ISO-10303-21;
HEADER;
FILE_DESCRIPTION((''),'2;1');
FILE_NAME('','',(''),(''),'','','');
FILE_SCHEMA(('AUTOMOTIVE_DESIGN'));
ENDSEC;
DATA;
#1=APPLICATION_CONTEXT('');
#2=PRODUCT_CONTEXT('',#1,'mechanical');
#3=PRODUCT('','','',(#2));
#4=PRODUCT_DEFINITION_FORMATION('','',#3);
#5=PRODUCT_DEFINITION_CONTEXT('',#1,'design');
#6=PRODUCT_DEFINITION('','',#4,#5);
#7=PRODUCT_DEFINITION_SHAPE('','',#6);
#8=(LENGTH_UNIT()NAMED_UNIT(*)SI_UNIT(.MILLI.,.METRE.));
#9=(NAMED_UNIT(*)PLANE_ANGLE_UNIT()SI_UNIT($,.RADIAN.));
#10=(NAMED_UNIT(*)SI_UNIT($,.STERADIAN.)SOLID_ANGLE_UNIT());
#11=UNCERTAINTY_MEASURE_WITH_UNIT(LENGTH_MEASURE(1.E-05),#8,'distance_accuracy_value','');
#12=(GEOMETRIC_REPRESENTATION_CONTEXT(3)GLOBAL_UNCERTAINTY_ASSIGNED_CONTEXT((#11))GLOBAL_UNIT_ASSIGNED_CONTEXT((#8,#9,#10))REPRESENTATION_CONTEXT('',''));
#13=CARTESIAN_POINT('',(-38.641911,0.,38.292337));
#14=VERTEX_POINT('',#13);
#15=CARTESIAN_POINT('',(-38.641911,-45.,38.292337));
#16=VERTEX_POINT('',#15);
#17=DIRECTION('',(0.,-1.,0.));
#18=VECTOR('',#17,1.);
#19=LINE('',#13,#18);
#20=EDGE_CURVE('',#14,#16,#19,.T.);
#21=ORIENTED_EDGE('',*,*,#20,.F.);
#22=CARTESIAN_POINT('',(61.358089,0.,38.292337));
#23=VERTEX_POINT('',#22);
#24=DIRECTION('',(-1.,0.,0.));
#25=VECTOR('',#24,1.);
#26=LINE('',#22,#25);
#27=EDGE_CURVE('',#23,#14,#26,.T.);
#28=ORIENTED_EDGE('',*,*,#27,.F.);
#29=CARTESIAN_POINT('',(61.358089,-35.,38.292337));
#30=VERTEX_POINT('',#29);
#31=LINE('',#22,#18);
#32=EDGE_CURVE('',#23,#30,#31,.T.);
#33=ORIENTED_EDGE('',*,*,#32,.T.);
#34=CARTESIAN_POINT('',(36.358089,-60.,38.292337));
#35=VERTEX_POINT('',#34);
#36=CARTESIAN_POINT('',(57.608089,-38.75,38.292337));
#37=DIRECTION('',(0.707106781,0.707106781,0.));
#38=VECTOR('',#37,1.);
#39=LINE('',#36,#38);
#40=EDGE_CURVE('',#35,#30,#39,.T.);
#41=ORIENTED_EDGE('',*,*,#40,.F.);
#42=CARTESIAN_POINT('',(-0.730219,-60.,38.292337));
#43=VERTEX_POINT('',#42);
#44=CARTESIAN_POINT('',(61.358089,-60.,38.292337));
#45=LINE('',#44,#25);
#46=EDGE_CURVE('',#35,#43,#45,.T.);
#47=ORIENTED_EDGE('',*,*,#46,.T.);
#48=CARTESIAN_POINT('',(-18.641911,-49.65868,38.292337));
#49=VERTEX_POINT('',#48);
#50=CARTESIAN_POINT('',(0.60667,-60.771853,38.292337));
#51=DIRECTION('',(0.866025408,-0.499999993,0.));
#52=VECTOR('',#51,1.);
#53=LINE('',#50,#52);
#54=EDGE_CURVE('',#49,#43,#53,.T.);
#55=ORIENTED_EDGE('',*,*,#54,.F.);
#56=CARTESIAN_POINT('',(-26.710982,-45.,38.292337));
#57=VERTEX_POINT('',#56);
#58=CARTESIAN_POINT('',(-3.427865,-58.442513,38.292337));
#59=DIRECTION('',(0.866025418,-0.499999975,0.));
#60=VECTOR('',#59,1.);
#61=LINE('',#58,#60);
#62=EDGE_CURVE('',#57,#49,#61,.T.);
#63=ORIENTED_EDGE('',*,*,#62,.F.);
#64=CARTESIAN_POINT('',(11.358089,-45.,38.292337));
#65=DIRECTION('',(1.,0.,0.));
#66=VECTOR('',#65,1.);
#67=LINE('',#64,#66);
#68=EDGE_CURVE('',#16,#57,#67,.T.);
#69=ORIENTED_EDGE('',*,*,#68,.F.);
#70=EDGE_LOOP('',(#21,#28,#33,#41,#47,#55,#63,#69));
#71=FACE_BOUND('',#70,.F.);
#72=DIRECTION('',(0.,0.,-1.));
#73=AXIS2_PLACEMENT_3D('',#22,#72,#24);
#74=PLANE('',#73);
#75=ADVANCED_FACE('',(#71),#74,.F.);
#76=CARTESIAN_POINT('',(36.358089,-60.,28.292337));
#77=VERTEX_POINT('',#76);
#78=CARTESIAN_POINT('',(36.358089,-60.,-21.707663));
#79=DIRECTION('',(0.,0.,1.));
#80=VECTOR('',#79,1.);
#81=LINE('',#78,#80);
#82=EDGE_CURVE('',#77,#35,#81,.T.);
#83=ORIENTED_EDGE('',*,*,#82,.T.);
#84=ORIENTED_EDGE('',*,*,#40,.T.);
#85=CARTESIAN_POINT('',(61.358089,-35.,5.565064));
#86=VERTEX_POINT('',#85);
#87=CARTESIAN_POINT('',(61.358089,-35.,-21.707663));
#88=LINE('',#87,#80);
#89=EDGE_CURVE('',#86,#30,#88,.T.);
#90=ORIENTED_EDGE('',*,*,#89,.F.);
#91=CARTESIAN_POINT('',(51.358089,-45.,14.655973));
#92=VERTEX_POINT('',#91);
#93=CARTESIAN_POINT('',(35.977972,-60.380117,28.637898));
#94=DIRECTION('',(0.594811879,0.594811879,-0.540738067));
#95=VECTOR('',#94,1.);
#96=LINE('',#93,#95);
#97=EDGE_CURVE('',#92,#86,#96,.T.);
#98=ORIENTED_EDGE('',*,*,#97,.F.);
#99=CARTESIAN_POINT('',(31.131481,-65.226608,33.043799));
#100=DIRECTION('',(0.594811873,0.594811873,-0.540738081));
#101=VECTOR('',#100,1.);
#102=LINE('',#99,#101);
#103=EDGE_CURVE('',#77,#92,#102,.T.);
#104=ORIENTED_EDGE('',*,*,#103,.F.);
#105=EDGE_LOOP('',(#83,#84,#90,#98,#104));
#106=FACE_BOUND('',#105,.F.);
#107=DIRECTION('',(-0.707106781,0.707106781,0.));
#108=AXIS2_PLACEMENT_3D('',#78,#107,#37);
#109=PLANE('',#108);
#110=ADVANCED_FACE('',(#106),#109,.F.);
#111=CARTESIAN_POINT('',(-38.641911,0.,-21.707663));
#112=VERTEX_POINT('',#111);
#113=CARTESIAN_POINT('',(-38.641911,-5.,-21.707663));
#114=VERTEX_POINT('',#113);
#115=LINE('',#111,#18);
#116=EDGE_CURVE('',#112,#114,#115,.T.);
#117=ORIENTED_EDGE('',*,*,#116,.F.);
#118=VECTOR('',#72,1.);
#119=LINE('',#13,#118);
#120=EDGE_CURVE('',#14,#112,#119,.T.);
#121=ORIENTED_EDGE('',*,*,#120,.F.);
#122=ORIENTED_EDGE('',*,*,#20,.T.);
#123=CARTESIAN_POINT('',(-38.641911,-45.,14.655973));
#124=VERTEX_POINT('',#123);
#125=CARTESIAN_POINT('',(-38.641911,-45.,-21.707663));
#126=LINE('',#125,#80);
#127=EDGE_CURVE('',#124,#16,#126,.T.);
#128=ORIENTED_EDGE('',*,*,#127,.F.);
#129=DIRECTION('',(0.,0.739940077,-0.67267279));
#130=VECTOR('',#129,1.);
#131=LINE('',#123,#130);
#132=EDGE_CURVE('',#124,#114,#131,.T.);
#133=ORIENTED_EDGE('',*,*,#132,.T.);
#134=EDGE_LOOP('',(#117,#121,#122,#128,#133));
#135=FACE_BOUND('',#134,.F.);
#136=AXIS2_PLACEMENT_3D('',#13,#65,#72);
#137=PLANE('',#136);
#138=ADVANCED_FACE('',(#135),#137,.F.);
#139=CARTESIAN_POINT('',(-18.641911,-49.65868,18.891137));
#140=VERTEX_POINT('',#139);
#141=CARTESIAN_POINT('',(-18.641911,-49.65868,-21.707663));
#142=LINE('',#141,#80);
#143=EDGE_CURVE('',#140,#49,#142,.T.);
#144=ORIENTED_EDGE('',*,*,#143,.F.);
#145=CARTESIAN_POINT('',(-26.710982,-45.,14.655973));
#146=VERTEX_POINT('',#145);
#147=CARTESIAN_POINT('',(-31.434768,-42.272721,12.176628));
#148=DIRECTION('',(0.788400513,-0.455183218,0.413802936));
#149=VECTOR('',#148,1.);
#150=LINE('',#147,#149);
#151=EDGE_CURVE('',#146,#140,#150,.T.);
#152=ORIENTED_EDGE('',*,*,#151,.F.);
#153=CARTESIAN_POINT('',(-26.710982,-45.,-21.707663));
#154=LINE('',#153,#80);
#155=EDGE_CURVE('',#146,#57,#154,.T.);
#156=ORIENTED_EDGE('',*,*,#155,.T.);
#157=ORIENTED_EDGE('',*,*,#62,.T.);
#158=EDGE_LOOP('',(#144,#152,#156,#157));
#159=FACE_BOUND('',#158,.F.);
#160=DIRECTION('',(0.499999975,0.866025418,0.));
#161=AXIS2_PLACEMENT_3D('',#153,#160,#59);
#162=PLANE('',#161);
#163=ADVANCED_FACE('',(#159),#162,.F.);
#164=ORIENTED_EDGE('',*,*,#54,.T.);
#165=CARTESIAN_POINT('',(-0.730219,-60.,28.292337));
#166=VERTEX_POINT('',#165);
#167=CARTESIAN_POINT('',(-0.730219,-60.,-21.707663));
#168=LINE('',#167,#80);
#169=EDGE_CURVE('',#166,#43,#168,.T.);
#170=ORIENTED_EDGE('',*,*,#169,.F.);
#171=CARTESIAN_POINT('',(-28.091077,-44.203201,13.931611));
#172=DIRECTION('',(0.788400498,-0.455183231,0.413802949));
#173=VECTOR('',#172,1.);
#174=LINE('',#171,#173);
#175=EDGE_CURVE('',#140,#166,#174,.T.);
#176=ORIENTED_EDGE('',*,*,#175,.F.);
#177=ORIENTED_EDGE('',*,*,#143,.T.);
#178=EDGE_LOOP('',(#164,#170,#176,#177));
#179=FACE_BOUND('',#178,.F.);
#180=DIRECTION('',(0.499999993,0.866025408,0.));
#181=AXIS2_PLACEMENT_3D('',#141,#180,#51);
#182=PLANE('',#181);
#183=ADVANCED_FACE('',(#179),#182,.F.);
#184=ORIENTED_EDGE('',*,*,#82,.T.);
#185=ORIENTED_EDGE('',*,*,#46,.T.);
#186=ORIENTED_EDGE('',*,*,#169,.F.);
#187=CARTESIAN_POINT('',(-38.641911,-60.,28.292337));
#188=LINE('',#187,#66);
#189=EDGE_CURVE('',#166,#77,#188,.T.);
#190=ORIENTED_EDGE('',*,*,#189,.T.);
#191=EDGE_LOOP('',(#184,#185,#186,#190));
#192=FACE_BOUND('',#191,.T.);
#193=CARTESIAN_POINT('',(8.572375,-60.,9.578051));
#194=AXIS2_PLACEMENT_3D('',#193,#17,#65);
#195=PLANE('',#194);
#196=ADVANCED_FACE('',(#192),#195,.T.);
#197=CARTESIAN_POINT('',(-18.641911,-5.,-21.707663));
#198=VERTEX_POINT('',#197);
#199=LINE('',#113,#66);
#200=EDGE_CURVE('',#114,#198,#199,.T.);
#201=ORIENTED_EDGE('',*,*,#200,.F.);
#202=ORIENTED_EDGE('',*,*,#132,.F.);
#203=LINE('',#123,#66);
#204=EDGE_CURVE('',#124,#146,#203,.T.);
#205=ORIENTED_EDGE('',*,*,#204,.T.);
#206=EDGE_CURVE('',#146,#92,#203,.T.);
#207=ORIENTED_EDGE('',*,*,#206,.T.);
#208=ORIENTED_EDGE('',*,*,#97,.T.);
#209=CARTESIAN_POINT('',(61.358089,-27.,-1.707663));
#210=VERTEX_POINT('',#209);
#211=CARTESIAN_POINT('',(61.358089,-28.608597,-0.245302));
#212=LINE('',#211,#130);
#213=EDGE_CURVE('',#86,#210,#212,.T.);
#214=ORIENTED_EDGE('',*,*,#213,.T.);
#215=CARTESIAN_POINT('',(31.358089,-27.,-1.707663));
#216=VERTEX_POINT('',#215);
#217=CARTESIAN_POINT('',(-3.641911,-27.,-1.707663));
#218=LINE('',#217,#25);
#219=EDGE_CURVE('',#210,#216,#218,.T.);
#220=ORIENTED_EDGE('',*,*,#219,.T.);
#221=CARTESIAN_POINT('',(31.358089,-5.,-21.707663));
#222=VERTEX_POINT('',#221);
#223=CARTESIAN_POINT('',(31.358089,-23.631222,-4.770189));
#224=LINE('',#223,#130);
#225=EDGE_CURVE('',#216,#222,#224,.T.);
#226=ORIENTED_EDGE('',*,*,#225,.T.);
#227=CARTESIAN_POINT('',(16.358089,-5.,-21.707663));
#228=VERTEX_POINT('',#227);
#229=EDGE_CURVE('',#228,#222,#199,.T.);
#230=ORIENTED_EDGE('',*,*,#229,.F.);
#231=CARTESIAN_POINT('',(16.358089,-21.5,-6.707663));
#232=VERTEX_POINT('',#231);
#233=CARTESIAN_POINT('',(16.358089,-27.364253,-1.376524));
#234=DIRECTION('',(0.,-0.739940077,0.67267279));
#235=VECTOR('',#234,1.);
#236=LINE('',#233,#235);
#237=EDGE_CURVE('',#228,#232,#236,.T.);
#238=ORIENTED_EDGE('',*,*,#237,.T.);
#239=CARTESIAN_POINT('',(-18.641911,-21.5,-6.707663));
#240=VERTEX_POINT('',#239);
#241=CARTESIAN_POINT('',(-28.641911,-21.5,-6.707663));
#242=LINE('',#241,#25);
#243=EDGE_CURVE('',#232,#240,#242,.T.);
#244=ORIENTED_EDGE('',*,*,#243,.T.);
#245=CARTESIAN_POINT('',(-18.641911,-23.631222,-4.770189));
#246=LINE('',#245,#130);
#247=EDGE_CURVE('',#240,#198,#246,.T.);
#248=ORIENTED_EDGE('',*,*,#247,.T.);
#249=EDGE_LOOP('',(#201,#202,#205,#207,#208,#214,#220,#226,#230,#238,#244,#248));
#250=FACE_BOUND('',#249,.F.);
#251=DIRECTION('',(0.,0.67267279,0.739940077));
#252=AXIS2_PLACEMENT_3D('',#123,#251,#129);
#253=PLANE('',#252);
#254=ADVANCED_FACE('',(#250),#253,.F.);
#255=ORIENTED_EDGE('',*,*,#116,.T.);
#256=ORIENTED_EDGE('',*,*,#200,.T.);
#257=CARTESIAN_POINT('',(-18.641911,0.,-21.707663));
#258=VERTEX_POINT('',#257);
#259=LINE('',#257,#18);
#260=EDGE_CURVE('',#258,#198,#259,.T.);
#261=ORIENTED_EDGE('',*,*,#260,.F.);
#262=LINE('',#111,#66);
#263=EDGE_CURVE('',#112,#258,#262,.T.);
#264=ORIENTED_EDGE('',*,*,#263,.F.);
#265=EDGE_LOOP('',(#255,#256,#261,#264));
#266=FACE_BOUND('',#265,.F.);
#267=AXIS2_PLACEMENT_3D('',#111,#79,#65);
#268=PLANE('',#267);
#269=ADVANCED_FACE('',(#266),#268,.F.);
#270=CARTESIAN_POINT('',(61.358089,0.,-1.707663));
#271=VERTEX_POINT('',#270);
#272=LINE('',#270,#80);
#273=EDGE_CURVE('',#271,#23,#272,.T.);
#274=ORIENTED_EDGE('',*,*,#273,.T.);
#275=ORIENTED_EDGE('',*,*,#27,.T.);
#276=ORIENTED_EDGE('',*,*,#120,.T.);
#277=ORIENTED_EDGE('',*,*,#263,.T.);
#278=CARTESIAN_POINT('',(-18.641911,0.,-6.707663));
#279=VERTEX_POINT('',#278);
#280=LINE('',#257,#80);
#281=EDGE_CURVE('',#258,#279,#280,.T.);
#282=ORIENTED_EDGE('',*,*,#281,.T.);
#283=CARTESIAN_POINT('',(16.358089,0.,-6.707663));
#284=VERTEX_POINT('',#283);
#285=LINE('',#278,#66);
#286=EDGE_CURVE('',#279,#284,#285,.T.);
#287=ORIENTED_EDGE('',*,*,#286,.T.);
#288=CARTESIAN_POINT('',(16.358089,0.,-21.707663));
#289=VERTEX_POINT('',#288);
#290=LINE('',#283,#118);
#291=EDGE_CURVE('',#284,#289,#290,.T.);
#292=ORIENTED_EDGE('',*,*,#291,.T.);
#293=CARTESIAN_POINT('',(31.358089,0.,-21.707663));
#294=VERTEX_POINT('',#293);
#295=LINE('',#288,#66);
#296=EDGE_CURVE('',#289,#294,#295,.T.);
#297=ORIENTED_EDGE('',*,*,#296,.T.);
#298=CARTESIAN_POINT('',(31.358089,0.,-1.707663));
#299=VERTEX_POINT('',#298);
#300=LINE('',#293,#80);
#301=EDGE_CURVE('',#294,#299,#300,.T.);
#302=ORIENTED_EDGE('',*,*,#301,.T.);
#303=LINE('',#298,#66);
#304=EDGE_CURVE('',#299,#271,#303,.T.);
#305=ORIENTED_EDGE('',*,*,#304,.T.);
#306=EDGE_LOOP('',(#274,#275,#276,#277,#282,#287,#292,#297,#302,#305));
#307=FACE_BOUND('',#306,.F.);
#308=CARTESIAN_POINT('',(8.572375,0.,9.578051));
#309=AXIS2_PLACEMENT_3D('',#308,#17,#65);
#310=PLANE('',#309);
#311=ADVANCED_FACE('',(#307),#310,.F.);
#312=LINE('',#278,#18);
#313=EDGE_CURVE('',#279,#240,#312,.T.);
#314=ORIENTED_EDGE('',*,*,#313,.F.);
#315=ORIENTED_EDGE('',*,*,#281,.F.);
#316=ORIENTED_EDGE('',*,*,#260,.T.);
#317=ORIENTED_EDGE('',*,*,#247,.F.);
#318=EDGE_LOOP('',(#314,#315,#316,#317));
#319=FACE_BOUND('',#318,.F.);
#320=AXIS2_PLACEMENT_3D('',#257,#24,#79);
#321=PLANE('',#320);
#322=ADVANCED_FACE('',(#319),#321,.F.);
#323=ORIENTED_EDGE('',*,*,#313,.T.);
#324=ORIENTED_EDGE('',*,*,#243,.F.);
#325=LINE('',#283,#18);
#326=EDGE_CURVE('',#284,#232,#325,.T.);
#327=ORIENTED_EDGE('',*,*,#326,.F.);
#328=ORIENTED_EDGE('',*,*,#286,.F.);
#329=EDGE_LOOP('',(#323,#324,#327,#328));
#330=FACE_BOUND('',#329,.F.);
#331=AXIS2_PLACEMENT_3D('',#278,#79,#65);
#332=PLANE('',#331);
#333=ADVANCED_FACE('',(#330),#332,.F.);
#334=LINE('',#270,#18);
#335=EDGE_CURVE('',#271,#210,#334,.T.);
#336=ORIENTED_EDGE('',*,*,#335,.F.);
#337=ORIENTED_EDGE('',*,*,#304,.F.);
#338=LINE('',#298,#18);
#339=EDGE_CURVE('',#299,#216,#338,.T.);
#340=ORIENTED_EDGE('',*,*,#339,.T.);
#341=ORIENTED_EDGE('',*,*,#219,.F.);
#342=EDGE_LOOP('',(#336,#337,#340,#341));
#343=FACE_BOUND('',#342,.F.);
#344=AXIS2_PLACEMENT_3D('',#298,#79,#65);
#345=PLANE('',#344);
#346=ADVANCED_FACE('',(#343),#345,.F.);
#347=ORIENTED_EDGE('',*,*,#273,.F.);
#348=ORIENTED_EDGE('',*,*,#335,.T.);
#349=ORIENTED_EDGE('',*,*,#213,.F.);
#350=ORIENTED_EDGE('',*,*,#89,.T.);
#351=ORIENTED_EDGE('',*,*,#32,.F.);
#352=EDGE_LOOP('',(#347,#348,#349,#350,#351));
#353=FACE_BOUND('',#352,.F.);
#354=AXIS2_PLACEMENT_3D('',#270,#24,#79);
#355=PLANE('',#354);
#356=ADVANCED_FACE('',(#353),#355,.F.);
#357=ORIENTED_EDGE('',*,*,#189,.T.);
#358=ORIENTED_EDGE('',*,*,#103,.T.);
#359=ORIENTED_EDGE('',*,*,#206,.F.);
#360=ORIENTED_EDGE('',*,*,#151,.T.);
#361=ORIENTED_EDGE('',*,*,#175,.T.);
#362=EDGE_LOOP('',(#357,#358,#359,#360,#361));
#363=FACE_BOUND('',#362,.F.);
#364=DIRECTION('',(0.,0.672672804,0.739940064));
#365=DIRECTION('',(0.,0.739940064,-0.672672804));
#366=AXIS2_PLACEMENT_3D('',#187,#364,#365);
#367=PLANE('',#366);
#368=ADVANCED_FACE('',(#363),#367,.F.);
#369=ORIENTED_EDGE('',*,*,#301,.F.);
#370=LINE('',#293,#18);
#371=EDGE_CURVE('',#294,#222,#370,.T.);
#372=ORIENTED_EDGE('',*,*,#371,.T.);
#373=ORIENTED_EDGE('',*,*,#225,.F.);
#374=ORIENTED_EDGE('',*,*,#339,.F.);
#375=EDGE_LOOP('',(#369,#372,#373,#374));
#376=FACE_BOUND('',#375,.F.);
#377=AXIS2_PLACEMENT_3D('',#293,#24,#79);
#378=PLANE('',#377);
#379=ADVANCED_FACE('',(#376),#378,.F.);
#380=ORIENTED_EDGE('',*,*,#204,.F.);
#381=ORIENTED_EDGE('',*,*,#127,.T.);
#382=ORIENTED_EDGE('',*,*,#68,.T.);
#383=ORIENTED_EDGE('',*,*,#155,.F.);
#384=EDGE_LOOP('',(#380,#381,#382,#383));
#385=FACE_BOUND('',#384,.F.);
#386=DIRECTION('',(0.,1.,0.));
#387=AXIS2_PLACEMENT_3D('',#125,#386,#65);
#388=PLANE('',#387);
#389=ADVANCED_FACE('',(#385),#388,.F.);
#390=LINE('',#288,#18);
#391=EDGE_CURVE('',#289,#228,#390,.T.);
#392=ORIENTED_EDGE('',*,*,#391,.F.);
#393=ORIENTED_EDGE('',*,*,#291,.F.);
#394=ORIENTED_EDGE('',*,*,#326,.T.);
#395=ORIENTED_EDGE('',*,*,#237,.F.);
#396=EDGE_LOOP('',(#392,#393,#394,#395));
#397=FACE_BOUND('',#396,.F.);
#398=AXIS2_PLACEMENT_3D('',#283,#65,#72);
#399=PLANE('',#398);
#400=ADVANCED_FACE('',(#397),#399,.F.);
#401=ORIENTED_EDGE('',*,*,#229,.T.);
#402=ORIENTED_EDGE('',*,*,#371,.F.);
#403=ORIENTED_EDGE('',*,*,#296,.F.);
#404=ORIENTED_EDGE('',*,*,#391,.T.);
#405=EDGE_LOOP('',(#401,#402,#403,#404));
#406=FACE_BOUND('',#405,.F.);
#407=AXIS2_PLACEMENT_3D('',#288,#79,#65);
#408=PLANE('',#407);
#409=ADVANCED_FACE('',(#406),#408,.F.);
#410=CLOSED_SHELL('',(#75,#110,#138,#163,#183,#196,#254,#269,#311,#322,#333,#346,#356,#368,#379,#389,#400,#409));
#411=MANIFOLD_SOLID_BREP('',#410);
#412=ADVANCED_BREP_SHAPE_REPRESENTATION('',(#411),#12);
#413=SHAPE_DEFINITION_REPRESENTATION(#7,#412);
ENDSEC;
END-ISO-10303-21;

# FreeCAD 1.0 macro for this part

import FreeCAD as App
import Part
import Sketcher
Q = App.Units.Quantity


def add_polygon(sketch, points):
    """Adds a closed chain of lines whose ends are joined by coincident constraints."""
    first, n = sketch.GeometryCount, len(points)
    for a, b in zip(points, points[1:] + points[:1]):
        sketch.addGeometry(Part.LineSegment(App.Vector(*a, 0), App.Vector(*b, 0)), False)
    for i in range(n):
        sketch.addConstraint(Sketcher.Constraint("Coincident", first + i, 2, first + (i + 1) % n, 1))

doc = App.newDocument("Part")
body = doc.addObject("PartDesign::Body", "Body")

# Sketch on XZ plane
sketch1 = body.newObject("Sketcher::SketchObject", "Sketch")
sketch1.AttachmentSupport = (doc.getObject("XZ_Plane"), [""])
sketch1.MapMode = "FlatFace"
add_polygon(sketch1, [(61, 38), (-39, 38), (-39, -22), (-19, -22), (-19, -7), (16, -7), (16, -22), (31, -22), (31, -2), (61, -2)])  # lines 0-9
sketch1.addConstraint([
    Sketcher.Constraint("Horizontal", 0),
    Sketcher.Constraint("Vertical", 1),
    Sketcher.Constraint("Horizontal", 2),
    Sketcher.Constraint("Vertical", 3),
    Sketcher.Constraint("Horizontal", 4),
    Sketcher.Constraint("Vertical", 5),
    Sketcher.Constraint("Horizontal", 6),
    Sketcher.Constraint("Vertical", 7),
    Sketcher.Constraint("Horizontal", 8),
    Sketcher.Constraint("Vertical", 9),
    Sketcher.Constraint("Horizontal", 2, 2, 5, 2),
    Sketcher.Constraint("Equal", 6, 3),
    Sketcher.Constraint("Equal", 2, 7),
    Sketcher.Constraint("DistanceX", 0, 2, 0, 1, 100.0),
    Sketcher.Constraint("DistanceX", 2, 1, 2, 2, 20.0),
    Sketcher.Constraint("DistanceX", 4, 1, 4, 2, 35.0),
    Sketcher.Constraint("DistanceX", 6, 1, 6, 2, 15.0),
    Sketcher.Constraint("DistanceY", 1, 2, 1, 1, 60.0),
    Sketcher.Constraint("DistanceX", 0, 2, -1, 1, 38.641911),
    Sketcher.Constraint("DistanceY", -1, 1, 0, 2, 38.292337),
])
pad1 = body.newObject("PartDesign::Pad", "Pad")
pad1.Profile = sketch1
pad1.Length = 60

# Sketch on XY plane
sketch2 = body.newObject("Sketcher::SketchObject", "Sketch001")
sketch2.AttachmentSupport = (doc.getObject("XY_Plane"), [""])
sketch2.MapMode = "FlatFace"
sketch2.AttachmentOffset = App.Placement(App.Vector(0, 0, -21.707663), App.Rotation())
add_polygon(sketch2, [(-39, -60), (-39, -45), (-27, -45), (-19, -50), (-1, -60)])  # lines 0-4
add_polygon(sketch2, [(61, -60), (36, -60), (61, -35)])  # lines 5-7
sketch2.addConstraint([
    Sketcher.Constraint("Vertical", 0),
    Sketcher.Constraint("Horizontal", 1),
    Sketcher.Constraint("Horizontal", 4),
    Sketcher.Constraint("Horizontal", 5),
    Sketcher.Constraint("Vertical", 7),
    Sketcher.Constraint("Parallel", 2, 3),
    Sketcher.Constraint("Horizontal", 4, 2, 5, 2),
    Sketcher.Constraint("Equal", 5, 7),
    Sketcher.Constraint("DistanceX", 5, 2, 5, 1, 25.0),
    Sketcher.Constraint("DistanceY", 0, 1, 0, 2, 15.0),
    Sketcher.Constraint("Angle", 2, Q("-29.999998 deg")),
    Sketcher.Constraint("DistanceY", 0, 2, -1, 1, 45.0),
    Sketcher.Constraint("DistanceX", 0, 2, 2, 2, 20.0),
    Sketcher.Constraint("DistanceX", 2, 2, 5, 2, 55.0),
    Sketcher.Constraint("DistanceX", 1, 1, 1, 2, 11.930929),
    Sketcher.Constraint("DistanceX", 0, 2, -1, 1, 38.641911),
])
pocket1 = body.newObject("PartDesign::Pocket", "Pocket")
pocket1.Profile = sketch2
pocket1.Type = "ThroughAll"
pocket1.Reversed = True

# Sketch on YZ plane
sketch3 = body.newObject("Sketcher::SketchObject", "Sketch002")
sketch3.AttachmentSupport = (doc.getObject("YZ_Plane"), [""])
sketch3.MapMode = "FlatFace"
sketch3.AttachmentOffset = App.Placement(App.Vector(0, 0, -38.641911), App.Rotation())
add_polygon(sketch3, [(-60, -22), (-60, 28), (-45, 15), (-5, -22)])  # lines 0-3
sketch3.addConstraint([
    Sketcher.Constraint("Vertical", 0),
    Sketcher.Constraint("Horizontal", 3),
    Sketcher.Constraint("Parallel", 1, 2),
    Sketcher.Constraint("DistanceX", 3, 2, 3, 1, 55.0),
    Sketcher.Constraint("DistanceY", 0, 1, 0, 2, 50.0),
    Sketcher.Constraint("DistanceX", 0, 2, -1, 1, 60.0),
    Sketcher.Constraint("DistanceX", 1, 2, -1, 1, 45.0),
    Sketcher.Constraint("DistanceY", -1, 1, 0, 2, 28.292337),
])
pocket2 = body.newObject("PartDesign::Pocket", "Pocket001")
pocket2.Profile = sketch3
pocket2.Type = "ThroughAll"
pocket2.Reversed = True

doc.recompute()
